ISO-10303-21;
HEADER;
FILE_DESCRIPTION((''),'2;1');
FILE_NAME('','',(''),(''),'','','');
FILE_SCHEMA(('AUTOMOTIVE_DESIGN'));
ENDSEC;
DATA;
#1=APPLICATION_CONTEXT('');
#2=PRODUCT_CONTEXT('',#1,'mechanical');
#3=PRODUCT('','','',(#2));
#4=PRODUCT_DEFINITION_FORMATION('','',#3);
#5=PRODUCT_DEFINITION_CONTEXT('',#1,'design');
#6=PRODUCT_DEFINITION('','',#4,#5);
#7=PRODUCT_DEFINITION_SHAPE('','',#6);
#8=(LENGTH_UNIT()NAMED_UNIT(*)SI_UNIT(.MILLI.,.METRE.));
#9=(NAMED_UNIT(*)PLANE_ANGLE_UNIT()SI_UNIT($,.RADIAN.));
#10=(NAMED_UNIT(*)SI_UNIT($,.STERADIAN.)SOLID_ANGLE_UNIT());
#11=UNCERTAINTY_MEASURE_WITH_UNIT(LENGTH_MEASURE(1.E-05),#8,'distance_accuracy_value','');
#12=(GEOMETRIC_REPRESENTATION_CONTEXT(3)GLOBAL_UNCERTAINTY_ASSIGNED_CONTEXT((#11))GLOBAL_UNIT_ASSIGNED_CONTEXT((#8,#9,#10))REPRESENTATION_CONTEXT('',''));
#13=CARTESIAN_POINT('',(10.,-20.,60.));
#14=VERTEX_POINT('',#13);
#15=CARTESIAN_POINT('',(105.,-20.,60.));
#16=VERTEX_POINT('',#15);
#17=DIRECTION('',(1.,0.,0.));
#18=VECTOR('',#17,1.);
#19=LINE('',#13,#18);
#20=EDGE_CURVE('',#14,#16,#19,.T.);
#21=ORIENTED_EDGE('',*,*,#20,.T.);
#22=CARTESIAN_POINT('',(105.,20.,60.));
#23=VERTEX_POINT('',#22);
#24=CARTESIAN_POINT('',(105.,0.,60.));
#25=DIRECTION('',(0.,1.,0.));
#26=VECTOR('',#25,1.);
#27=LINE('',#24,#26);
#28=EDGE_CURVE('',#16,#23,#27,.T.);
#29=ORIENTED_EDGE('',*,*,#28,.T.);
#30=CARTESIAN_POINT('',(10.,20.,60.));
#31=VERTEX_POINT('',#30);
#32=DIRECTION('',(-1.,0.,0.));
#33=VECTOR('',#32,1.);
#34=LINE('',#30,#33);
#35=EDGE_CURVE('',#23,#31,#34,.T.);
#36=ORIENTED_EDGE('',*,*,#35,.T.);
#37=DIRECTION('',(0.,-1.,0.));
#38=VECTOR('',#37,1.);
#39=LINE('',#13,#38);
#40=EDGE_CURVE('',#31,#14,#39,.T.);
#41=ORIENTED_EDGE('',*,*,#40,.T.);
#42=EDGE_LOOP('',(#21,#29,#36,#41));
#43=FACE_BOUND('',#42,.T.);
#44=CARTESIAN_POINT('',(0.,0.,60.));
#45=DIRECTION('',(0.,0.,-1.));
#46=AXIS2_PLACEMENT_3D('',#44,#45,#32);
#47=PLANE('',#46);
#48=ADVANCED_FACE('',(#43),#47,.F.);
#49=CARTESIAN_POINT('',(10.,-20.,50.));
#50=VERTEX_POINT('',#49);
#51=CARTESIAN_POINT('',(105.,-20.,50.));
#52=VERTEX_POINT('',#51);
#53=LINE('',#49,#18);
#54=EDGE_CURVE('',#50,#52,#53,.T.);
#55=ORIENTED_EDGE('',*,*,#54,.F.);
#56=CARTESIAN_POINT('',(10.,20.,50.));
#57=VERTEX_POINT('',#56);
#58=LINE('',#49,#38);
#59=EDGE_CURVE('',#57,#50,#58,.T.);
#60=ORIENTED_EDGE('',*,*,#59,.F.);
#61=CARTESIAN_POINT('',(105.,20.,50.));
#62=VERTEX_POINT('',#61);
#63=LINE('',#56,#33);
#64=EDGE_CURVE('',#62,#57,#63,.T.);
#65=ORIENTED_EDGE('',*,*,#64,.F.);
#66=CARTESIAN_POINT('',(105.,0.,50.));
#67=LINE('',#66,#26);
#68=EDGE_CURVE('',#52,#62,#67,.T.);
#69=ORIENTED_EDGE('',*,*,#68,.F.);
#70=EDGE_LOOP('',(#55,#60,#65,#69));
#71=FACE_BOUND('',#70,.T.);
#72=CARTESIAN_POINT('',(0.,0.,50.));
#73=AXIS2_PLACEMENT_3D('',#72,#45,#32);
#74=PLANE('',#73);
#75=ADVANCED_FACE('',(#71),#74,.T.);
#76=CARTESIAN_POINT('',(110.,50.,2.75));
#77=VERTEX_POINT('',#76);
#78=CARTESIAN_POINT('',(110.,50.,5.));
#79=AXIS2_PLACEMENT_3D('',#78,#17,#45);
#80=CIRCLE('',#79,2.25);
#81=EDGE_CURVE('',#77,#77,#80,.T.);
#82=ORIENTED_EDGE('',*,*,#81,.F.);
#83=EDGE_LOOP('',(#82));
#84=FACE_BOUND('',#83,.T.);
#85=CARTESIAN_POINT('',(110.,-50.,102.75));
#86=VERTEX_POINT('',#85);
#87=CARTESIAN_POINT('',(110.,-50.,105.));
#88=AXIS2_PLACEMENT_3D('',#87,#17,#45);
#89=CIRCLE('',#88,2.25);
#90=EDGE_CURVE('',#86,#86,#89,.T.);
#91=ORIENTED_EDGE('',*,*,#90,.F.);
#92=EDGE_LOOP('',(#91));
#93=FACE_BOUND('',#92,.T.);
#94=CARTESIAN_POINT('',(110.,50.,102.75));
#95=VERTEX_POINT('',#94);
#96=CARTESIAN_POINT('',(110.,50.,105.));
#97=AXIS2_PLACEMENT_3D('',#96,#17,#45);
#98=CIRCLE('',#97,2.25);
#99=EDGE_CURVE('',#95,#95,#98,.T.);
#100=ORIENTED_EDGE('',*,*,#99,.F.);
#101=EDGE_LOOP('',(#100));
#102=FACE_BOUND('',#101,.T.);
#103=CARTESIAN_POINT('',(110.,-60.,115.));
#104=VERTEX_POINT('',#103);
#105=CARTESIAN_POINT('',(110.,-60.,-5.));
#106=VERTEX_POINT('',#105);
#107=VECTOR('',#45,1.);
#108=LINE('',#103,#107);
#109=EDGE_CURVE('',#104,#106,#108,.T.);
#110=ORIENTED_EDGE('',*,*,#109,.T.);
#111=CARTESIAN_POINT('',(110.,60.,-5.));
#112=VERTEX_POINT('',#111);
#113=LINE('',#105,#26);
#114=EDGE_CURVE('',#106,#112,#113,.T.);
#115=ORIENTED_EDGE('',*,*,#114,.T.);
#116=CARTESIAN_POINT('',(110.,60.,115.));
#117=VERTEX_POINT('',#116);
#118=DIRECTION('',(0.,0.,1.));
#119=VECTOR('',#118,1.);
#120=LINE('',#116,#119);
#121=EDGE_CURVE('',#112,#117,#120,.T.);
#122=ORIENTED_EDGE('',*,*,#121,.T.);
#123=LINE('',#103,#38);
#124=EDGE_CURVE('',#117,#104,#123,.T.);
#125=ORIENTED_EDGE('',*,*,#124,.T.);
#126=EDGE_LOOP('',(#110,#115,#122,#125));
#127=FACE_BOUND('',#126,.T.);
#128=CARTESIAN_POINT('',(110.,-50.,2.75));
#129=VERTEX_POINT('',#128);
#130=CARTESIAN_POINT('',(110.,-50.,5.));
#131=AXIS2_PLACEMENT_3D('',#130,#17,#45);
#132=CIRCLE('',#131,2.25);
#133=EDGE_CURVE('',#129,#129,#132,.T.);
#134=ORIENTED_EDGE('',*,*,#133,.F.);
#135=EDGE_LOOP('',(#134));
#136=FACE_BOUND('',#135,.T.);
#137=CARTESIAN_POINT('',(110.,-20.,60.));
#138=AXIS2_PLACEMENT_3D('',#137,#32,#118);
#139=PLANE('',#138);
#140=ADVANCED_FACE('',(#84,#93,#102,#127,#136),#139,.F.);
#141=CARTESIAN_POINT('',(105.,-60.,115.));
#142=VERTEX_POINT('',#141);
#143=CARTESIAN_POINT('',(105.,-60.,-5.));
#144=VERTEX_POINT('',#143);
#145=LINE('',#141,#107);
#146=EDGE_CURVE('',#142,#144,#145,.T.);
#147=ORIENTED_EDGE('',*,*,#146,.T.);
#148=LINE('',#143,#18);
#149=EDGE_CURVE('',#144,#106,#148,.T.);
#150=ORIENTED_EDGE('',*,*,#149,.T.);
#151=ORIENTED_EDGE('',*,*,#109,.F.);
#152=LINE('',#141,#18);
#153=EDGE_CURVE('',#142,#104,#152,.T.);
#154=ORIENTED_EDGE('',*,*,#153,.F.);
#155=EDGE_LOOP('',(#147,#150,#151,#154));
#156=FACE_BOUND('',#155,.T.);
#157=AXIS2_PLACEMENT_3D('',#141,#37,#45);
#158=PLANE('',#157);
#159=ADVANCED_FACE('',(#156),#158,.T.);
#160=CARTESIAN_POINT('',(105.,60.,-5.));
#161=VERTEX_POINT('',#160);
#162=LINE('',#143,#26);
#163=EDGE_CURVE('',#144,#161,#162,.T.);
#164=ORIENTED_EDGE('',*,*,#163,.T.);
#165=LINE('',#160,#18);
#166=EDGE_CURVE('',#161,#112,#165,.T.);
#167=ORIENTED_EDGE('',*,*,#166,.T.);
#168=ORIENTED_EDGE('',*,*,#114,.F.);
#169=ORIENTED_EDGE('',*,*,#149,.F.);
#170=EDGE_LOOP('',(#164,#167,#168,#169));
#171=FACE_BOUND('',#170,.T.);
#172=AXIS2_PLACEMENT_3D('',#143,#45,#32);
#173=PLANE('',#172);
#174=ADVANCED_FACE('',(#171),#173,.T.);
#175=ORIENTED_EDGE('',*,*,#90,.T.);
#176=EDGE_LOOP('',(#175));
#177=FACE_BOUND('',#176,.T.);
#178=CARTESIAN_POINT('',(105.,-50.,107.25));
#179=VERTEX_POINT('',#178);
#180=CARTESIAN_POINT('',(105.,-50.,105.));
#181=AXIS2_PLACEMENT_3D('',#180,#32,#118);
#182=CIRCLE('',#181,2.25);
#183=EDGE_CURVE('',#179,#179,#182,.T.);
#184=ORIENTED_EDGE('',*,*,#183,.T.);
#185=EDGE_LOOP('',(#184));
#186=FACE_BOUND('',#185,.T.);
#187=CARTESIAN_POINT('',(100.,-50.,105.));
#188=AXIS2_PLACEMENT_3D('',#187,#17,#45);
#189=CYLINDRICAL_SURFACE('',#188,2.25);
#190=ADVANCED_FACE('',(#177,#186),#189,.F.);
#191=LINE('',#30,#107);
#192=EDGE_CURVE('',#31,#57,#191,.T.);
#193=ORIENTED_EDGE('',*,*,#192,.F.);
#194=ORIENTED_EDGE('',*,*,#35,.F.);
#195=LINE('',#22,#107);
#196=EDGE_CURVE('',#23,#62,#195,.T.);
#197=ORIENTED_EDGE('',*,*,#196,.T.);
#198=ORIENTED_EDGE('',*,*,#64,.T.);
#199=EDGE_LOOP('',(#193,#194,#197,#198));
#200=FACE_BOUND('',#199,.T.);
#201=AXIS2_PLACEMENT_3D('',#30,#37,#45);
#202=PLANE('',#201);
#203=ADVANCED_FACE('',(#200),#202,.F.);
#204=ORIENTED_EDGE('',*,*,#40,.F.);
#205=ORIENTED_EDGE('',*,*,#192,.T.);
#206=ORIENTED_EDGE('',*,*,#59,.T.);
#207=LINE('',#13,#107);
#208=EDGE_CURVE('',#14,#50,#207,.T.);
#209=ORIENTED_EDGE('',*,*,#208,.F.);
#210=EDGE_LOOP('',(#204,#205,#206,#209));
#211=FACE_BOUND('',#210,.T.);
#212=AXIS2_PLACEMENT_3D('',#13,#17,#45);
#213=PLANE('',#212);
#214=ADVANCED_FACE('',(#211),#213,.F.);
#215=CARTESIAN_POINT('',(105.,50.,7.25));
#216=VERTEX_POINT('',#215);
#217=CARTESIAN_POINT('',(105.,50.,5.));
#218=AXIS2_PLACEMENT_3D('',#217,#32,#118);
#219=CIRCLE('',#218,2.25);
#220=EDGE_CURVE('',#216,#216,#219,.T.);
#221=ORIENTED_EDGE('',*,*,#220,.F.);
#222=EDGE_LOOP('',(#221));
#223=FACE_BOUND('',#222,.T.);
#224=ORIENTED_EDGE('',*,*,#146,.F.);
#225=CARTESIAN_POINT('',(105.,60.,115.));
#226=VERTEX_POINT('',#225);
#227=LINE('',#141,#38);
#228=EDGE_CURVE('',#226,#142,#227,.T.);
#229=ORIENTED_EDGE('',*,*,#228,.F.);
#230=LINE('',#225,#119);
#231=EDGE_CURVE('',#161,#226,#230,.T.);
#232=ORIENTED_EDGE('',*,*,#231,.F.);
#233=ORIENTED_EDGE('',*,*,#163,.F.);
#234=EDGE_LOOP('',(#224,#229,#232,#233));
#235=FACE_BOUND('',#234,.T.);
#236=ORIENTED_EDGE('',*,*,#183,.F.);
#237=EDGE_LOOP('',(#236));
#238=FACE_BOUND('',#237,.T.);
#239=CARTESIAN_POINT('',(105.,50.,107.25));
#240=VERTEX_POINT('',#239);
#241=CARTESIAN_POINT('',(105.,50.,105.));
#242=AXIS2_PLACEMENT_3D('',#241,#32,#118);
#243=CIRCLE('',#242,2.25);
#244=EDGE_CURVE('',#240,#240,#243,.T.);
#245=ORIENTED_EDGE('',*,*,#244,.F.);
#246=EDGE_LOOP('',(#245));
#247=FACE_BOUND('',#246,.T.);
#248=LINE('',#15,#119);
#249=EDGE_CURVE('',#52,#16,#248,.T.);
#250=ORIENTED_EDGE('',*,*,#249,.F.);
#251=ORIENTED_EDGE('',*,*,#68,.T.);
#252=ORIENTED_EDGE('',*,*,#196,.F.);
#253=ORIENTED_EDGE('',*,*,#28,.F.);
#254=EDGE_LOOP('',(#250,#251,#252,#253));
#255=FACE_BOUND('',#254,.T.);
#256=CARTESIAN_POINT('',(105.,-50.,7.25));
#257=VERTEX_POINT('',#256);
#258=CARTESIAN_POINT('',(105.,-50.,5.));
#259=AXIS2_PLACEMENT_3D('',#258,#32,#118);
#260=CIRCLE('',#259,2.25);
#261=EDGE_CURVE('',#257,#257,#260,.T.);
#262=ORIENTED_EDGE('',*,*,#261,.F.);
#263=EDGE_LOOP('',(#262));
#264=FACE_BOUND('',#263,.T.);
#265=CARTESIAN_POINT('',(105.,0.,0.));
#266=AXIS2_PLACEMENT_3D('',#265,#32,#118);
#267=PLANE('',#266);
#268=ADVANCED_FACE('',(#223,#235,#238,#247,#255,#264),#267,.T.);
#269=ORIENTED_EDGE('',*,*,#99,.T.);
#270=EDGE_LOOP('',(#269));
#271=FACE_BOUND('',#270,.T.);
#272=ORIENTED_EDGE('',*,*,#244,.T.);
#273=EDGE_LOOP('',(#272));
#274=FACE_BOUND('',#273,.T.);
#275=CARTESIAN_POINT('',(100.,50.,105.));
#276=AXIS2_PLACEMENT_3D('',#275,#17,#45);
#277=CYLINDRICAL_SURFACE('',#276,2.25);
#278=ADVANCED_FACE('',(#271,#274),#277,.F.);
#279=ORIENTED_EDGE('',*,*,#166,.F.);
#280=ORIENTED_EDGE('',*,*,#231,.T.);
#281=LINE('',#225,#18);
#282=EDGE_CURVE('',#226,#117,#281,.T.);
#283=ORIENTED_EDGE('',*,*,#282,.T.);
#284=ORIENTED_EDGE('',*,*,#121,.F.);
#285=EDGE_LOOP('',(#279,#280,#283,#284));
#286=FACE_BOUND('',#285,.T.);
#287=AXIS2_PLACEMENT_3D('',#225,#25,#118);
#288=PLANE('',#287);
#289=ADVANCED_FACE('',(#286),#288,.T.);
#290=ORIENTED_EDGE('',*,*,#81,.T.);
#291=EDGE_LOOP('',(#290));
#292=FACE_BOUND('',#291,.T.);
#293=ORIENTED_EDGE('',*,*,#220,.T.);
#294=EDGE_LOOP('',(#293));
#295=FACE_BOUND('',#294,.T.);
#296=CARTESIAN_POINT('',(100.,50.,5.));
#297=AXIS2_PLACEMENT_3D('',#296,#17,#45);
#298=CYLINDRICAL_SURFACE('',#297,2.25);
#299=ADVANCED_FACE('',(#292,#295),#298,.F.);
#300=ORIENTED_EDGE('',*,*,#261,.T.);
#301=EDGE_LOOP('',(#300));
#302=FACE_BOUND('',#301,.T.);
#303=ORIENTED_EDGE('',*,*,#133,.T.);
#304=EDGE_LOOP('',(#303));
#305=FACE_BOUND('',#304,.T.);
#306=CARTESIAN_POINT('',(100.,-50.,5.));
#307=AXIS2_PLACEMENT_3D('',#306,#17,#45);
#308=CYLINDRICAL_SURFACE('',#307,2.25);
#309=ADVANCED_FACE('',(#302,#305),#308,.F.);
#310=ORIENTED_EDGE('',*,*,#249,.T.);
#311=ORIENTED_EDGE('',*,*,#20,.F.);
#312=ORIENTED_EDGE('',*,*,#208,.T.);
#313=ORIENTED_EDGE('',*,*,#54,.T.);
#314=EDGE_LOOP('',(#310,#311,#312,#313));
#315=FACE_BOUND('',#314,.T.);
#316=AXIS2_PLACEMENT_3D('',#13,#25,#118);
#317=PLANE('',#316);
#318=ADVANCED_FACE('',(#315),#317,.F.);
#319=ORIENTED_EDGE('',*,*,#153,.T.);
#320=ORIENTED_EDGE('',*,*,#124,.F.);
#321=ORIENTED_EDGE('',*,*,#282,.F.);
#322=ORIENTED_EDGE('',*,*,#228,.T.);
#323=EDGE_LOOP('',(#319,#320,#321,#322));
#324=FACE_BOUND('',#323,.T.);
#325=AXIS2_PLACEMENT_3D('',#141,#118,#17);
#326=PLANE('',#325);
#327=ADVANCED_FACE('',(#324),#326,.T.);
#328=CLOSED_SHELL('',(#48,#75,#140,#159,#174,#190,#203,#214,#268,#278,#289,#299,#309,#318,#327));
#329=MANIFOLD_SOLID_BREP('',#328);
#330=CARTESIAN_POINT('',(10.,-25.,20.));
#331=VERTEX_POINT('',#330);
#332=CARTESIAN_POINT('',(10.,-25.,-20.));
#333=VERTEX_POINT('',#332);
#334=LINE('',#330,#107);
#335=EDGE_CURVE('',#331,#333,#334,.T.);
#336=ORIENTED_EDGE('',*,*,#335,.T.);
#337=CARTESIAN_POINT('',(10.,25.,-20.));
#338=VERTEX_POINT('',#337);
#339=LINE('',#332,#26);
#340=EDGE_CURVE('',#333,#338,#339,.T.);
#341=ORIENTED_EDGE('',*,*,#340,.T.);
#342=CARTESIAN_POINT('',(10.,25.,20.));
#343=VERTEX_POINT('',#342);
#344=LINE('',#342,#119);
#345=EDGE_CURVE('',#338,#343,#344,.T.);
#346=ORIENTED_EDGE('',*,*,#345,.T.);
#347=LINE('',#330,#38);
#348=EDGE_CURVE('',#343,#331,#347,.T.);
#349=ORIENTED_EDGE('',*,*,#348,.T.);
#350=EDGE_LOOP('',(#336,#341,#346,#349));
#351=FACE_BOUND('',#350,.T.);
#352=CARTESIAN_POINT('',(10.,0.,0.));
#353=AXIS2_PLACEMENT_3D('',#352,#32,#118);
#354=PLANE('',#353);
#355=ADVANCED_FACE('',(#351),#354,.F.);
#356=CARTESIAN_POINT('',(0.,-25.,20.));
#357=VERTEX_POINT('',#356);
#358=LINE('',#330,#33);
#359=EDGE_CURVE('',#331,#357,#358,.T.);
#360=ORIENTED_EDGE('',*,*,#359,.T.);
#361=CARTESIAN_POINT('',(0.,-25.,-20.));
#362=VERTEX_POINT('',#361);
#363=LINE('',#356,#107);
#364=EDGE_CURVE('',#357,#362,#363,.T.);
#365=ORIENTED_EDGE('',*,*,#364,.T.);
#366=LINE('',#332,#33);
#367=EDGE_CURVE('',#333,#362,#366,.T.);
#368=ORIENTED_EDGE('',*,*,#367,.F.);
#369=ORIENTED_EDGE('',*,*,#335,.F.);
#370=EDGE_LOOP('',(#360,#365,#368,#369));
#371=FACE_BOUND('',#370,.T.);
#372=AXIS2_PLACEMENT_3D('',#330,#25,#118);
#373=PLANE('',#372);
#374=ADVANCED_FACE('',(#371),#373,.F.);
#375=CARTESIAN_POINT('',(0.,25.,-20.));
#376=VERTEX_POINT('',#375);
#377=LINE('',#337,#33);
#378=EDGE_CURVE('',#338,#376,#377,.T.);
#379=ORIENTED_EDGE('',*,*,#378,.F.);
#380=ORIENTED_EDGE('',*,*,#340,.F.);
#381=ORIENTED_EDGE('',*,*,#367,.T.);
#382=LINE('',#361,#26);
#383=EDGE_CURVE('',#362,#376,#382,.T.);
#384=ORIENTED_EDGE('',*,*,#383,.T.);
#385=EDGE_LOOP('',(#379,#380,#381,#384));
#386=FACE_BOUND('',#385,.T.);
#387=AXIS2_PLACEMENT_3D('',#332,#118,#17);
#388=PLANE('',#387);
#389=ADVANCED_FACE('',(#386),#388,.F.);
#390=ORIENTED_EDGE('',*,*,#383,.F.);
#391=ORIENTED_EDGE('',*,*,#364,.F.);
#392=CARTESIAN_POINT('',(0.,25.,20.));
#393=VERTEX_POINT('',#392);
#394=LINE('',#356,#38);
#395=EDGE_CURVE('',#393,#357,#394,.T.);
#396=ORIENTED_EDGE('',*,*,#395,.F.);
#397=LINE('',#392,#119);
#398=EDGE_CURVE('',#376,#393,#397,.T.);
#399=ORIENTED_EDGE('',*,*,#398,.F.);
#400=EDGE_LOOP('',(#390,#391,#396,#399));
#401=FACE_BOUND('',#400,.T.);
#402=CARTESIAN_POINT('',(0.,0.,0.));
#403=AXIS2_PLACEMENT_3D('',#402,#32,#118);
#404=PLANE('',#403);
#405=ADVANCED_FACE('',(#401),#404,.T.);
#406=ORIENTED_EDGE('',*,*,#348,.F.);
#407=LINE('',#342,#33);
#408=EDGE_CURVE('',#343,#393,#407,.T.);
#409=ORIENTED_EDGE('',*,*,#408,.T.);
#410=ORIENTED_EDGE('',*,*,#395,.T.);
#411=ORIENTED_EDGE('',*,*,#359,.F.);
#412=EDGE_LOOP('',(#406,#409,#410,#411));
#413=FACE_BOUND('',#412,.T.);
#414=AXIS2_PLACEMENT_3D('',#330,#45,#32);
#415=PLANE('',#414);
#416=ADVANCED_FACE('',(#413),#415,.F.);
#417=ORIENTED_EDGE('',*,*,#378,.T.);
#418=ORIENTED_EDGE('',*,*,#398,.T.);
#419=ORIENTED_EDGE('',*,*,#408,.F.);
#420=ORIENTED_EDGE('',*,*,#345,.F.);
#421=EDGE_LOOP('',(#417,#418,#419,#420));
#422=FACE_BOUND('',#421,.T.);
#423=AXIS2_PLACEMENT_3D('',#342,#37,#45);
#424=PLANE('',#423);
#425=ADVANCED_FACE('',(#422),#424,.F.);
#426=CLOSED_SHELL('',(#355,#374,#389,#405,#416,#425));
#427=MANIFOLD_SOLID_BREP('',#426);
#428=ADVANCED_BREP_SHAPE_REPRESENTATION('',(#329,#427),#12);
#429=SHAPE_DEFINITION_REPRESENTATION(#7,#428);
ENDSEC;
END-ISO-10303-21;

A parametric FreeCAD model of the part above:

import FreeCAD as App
import Part
import Sketcher
Q = App.Units.Quantity


def add_polygon(sketch, points):
    """Adds a closed chain of lines whose ends are joined by coincident constraints."""
    first, n = sketch.GeometryCount, len(points)
    for a, b in zip(points, points[1:] + points[:1]):
        sketch.addGeometry(Part.LineSegment(App.Vector(*a, 0), App.Vector(*b, 0)), False)
    for i in range(n):
        sketch.addConstraint(Sketcher.Constraint("Coincident", first + i, 2, first + (i + 1) % n, 1))

doc = App.newDocument("Part")
body = doc.addObject("PartDesign::Body", "Body")

sketch1 = body.newObject("Sketcher::SketchObject", "Sketch")
sketch1.AttachmentSupport = (doc.getObject("YZ_Plane"), [""])
sketch1.MapMode = "FlatFace"
add_polygon(sketch1, [(25, 20), (-25, 20), (-25, -20), (25, -20)])
sketch1.addConstraint([
    Sketcher.Constraint("Horizontal", 0),
    Sketcher.Constraint("Vertical", 1),
    Sketcher.Constraint("Horizontal", 2),
    Sketcher.Constraint("Vertical", 3),
    Sketcher.Constraint("Symmetric", 0, 2, 2, 2, -1, 1),
    Sketcher.Constraint("DistanceX", 0, 2, 0, 1, Q("50 mm")),
    Sketcher.Constraint("DistanceY", 1, 2, 1, 1, Q("40 mm")),
])
pad1 = body.newObject("PartDesign::Pad", "Pad")
pad1.Profile = sketch1
pad1.Length = 10
body2 = doc.addObject("PartDesign::Body", "Body001")

sketch2 = body2.newObject("Sketcher::SketchObject", "Sketch001")
sketch2.AttachmentSupport = (doc.getObject("XY_Plane001"), [""])
sketch2.MapMode = "FlatFace"
sketch2.AttachmentOffset = App.Placement(App.Vector(0, 0, 50), App.Rotation())
add_polygon(sketch2, [(10, 20), (10, -20), (110, -20), (110, 20)])
sketch2.addConstraint([
    Sketcher.Constraint("Vertical", 0),
    Sketcher.Constraint("Horizontal", 1),
    Sketcher.Constraint("Vertical", 2),
    Sketcher.Constraint("Horizontal", 3),
    Sketcher.Constraint("DistanceX", 1, 1, 1, 2, Q("100 mm")),
    Sketcher.Constraint("DistanceY", 0, 2, 0, 1, Q("40 mm")),
    Sketcher.Constraint("DistanceX", -1, 1, 0, 2, Q("10 mm")),
    Sketcher.Constraint("DistanceY", 0, 2, -1, 1, Q("20 mm")),
])
pad2 = body2.newObject("PartDesign::Pad", "Pad001")
pad2.Profile = sketch2
pad2.Length = 10

sketch3 = body2.newObject("Sketcher::SketchObject", "Sketch002")
sketch3.AttachmentSupport = (doc.getObject("YZ_Plane001"), [""])
sketch3.MapMode = "FlatFace"
sketch3.AttachmentOffset = App.Placement(App.Vector(0, 0, 110), App.Rotation())
add_polygon(sketch3, [(60, 115), (-60, 115), (-60, -5), (60, -5)])
sketch3.addConstraint([
    Sketcher.Constraint("Horizontal", 0),
    Sketcher.Constraint("Vertical", 1),
    Sketcher.Constraint("Horizontal", 2),
    Sketcher.Constraint("Vertical", 3),
    Sketcher.Constraint("Equal", 2, 1),
    Sketcher.Constraint("DistanceX", 0, 2, 0, 1, Q("120 mm")),
    Sketcher.Constraint("DistanceX", 0, 2, -1, 1, Q("60 mm")),
    Sketcher.Constraint("DistanceY", -1, 1, 0, 2, Q("115 mm")),
])
pad3 = body2.newObject("PartDesign::Pad", "Pad002")
pad3.Profile = sketch3
pad3.Length = 5
pad3.Reversed = True

sketch4 = body2.newObject("Sketcher::SketchObject", "Sketch003")
sketch4.AttachmentSupport = (doc.getObject("YZ_Plane001"), [""])
sketch4.MapMode = "FlatFace"
sketch4.AttachmentOffset = App.Placement(App.Vector(0, 0, 110), App.Rotation())
sketch4.addGeometry([
    Part.Circle(App.Vector(-50, 105, 0), App.Vector(0, 0, 1), 2.25),
    Part.Circle(App.Vector(50, 105, 0), App.Vector(0, 0, 1), 2.25),
    Part.Circle(App.Vector(-50, 5, 0), App.Vector(0, 0, 1), 2.25),
    Part.Circle(App.Vector(50, 5, 0), App.Vector(0, 0, 1), 2.25),
], False)
sketch4.addConstraint([
    Sketcher.Constraint("Equal", 0, 1),
    Sketcher.Constraint("Equal", 1, 2),
    Sketcher.Constraint("Equal", 2, 3),
    Sketcher.Constraint("Symmetric", 0, 3, 1, 3, -2),
    Sketcher.Constraint("Symmetric", 2, 3, 3, 3, -2),
    Sketcher.Constraint("Vertical", 0, 3, 2, 3),
    Sketcher.Constraint("Diameter", 0, Q("4.5 mm")),
    Sketcher.Constraint("DistanceX", 0, 3, -1, 1, Q("50 mm")),
    Sketcher.Constraint("DistanceY", -1, 1, 0, 3, Q("105 mm")),
    Sketcher.Constraint("DistanceY", -1, 1, 2, 3, Q("5 mm")),
])
pocket1 = body2.newObject("PartDesign::Pocket", "Pocket")
pocket1.Profile = sketch4
pocket1.Length = 10

doc.recompute()
